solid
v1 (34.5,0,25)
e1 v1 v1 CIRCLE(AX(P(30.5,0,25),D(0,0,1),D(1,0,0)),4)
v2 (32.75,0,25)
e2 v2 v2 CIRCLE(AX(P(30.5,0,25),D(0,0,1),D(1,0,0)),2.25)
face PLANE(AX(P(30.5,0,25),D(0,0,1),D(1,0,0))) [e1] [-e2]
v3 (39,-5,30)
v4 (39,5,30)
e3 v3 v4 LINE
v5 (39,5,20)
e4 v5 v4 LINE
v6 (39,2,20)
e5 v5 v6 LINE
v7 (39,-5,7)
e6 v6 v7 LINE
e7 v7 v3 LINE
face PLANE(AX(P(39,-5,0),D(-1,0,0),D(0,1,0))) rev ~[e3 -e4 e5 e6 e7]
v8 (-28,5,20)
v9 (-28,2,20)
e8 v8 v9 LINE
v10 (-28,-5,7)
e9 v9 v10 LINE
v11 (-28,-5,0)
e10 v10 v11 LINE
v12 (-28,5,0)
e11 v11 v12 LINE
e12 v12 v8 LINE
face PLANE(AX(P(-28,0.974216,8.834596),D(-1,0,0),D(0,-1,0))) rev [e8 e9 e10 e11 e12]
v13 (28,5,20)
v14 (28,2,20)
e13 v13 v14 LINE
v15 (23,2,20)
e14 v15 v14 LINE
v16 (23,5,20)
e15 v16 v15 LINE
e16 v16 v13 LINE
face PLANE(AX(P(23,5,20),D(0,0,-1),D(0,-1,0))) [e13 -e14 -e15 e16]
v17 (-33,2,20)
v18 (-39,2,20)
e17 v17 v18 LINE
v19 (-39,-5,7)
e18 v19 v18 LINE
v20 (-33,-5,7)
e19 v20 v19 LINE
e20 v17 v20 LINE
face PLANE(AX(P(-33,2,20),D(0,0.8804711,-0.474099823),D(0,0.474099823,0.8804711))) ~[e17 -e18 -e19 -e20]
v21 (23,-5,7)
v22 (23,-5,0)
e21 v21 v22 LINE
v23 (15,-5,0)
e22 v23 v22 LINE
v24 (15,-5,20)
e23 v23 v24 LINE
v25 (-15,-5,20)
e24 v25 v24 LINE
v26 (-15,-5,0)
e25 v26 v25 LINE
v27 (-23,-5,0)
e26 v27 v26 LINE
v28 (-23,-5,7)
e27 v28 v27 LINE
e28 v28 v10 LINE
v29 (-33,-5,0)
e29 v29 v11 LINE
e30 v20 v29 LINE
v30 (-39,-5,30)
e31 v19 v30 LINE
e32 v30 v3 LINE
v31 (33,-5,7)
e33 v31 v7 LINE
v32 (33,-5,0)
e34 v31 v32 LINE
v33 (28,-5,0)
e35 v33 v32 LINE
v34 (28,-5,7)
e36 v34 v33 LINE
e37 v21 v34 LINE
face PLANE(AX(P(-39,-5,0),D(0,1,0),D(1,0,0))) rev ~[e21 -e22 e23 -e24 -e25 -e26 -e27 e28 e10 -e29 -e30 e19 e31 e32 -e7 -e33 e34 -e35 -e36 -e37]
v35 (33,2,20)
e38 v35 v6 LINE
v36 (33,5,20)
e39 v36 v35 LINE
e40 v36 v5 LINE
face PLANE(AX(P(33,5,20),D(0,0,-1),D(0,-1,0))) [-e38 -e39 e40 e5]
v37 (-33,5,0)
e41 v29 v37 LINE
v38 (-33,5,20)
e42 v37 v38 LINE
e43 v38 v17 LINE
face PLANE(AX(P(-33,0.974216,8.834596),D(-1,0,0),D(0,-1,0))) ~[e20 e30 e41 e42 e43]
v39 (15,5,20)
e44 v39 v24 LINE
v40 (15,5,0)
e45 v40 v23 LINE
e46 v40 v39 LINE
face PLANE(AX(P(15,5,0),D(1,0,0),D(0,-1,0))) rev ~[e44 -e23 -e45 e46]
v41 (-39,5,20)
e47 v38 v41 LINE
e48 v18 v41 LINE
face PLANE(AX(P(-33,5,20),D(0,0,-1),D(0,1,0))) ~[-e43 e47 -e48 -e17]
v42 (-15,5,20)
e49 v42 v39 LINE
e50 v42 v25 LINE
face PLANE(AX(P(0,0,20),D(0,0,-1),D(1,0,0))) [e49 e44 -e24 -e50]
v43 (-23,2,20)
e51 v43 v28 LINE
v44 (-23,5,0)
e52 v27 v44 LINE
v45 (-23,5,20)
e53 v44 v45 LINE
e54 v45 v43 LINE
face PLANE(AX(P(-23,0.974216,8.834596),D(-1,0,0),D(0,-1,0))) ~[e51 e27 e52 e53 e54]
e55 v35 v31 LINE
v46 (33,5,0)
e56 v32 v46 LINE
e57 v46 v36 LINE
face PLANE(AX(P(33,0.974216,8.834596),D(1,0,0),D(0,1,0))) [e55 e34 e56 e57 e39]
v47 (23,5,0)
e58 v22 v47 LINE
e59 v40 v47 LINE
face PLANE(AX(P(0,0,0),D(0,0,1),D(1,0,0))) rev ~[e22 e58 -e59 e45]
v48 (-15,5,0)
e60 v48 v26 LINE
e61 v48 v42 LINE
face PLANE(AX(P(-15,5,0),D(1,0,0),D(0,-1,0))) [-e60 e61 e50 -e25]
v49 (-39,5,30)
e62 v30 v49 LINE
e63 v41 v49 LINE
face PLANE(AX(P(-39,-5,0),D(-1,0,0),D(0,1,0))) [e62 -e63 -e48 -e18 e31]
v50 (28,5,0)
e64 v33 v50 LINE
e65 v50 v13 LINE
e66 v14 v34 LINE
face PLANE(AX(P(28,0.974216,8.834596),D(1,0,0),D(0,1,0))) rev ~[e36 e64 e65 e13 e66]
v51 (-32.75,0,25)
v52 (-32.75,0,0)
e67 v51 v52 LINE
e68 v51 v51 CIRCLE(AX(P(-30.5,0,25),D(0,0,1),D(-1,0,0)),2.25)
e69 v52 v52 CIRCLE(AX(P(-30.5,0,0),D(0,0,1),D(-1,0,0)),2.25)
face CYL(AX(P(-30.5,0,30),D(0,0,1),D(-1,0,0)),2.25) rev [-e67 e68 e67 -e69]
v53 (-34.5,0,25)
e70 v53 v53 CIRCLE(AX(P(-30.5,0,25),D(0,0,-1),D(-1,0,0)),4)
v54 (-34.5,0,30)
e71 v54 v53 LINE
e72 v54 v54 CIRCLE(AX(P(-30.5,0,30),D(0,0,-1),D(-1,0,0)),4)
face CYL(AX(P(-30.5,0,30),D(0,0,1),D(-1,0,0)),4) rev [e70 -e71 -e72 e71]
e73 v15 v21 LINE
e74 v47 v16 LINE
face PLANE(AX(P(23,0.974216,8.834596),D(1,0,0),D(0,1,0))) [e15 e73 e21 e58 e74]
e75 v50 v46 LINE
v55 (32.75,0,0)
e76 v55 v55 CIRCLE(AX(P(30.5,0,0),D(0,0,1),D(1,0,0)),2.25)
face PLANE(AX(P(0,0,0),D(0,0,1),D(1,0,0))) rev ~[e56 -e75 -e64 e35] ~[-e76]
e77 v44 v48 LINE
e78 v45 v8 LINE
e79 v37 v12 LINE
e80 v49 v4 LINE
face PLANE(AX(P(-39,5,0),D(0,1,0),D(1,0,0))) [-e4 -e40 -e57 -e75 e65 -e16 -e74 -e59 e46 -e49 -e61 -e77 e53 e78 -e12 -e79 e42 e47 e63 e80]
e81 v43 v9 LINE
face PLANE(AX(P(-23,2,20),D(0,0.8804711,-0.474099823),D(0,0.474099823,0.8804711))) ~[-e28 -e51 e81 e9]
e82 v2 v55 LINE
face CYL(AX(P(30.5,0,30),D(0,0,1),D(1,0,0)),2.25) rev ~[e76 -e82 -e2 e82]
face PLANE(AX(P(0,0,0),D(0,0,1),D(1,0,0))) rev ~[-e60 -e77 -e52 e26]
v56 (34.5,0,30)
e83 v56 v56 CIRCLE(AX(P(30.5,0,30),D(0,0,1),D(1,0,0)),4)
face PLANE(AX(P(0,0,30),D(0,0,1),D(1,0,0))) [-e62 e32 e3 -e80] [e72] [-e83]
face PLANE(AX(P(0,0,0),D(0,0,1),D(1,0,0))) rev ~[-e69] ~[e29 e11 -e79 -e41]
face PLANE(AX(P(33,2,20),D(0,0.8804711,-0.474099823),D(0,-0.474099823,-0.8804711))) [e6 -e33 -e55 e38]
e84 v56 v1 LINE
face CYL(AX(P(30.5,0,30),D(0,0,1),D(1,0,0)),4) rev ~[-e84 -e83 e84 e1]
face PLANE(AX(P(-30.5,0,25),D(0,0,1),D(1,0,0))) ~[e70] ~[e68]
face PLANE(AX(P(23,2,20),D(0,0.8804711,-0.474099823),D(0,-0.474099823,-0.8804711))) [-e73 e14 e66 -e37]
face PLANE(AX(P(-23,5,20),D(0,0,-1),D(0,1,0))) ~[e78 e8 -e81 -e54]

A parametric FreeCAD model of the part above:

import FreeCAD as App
import Part
import Sketcher
Q = App.Units.Quantity


def add_polygon(sketch, points):
    """Adds a closed chain of lines whose ends are joined by coincident constraints."""
    first, n = sketch.GeometryCount, len(points)
    for a, b in zip(points, points[1:] + points[:1]):
        sketch.addGeometry(Part.LineSegment(App.Vector(*a, 0), App.Vector(*b, 0)), False)
    for i in range(n):
        sketch.addConstraint(Sketcher.Constraint("Coincident", first + i, 2, first + (i + 1) % n, 1))

doc = App.newDocument("Part")
params = doc.addObject("Spreadsheet::Sheet", "Params")
for row, (alias, value) in enumerate([
    ("sketch1_width", "78 mm"),
    ("sketch1_height", "10 mm"),
    ("pad1_length", "30 mm"),
    ("sketch2_width", "10 mm"),
    ("sketch2_width2", "3 mm"),
    ("sketch2_height", "20 mm"),
    ("sketch2_height2", "7 mm"),
    ("pocket1_length", "5 mm"),
    ("sketch3_width", "10 mm"),
    ("sketch3_width2", "3 mm"),
    ("sketch3_height", "20 mm"),
    ("sketch3_height2", "7 mm"),
    ("sketch4_diameter", "4.5 mm"),
    ("sketch5_diameter", "8 mm"),
    ("pocket4_length", "5 mm"),
    ("sketch6_width", "30 mm"),
    ("sketch6_height", "10 mm"),
    ("pocket5_length", "20 mm"),
], start=1):
    params.set(f"A{row}", alias)
    params.set(f"B{row}", "=" + value)
    params.setAlias(f"B{row}", alias)

body = doc.addObject("PartDesign::Body", "Body")

# Sketch on XY plane
sketch1 = doc.addObject("Sketcher::SketchObject", "Sketch")
body.addObject(sketch1)
sketch1.AttachmentSupport = (doc.XY_Plane, [""])
sketch1.MapMode = "FlatFace"
add_polygon(sketch1, [(-39, 5), (-39, -5), (39, -5), (39, 5)])  # lines 0-3
sketch1.addConstraint(Sketcher.Constraint("Vertical", 0))
sketch1.addConstraint(Sketcher.Constraint("Horizontal", 1))
sketch1.addConstraint(Sketcher.Constraint("Vertical", 2))
sketch1.addConstraint(Sketcher.Constraint("Horizontal", 3))
sketch1.addConstraint(Sketcher.Constraint("Symmetric", 0, 2, 2, 2, -1, 1))
sketch1.addConstraint(Sketcher.Constraint("DistanceX", 1, 1, 1, 2, Q("78 mm")))
sketch1.addConstraint(Sketcher.Constraint("DistanceY", 0, 2, 0, 1, Q("10 mm")))
sketch1.setExpression("Constraints[9]", "Params.sketch1_width")
sketch1.setExpression("Constraints[10]", "Params.sketch1_height")
pad1 = doc.addObject("PartDesign::Pad", "Pad")
body.addObject(pad1)
pad1.Profile = sketch1
pad1.setExpression("Length", "Params.pad1_length")

# Sketch on YZ plane
sketch2 = doc.addObject("Sketcher::SketchObject", "Sketch001")
body.addObject(sketch2)
sketch2.AttachmentSupport = (doc.YZ_Plane, [""])
sketch2.MapMode = "FlatFace"
sketch2.AttachmentOffset = App.Placement(App.Vector(0, 0, 23), App.Rotation())
add_polygon(sketch2, [(-5, 0), (5, 0), (5, 20), (2, 20), (-5, 7)])  # lines 0-4
sketch2.addConstraint(Sketcher.Constraint("Horizontal", 0))
sketch2.addConstraint(Sketcher.Constraint("Vertical", 1))
sketch2.addConstraint(Sketcher.Constraint("Horizontal", 2))
sketch2.addConstraint(Sketcher.Constraint("Vertical", 4))
sketch2.addConstraint(Sketcher.Constraint("Symmetric", 0, 2, 4, 2, -1, 1))
sketch2.addConstraint(Sketcher.Constraint("DistanceX", 0, 1, 0, 2, Q("10 mm")))
sketch2.addConstraint(Sketcher.Constraint("DistanceX", 2, 2, 2, 1, Q("3 mm")))
sketch2.addConstraint(Sketcher.Constraint("DistanceY", 1, 1, 1, 2, Q("20 mm")))
sketch2.addConstraint(Sketcher.Constraint("DistanceY", 4, 2, 4, 1, Q("7 mm")))
sketch2.setExpression("Constraints[10]", "Params.sketch2_width")
sketch2.setExpression("Constraints[11]", "Params.sketch2_width2")
sketch2.setExpression("Constraints[12]", "Params.sketch2_height")
sketch2.setExpression("Constraints[13]", "Params.sketch2_height2")
pocket1 = doc.addObject("PartDesign::Pocket", "Pocket")
body.addObject(pocket1)
pocket1.Profile = sketch2
pocket1.setExpression("Length", "Params.pocket1_length")
pocket1.Reversed = True

# Sketch on YZ plane
sketch3 = doc.addObject("Sketcher::SketchObject", "Sketch002")
body.addObject(sketch3)
sketch3.AttachmentSupport = (doc.YZ_Plane, [""])
sketch3.MapMode = "FlatFace"
sketch3.AttachmentOffset = App.Placement(App.Vector(0, 0, 33), App.Rotation())
add_polygon(sketch3, [(-5, 0), (5, 0), (5, 20), (2, 20), (-5, 7)])  # lines 0-4
sketch3.addConstraint(Sketcher.Constraint("Horizontal", 0))
sketch3.addConstraint(Sketcher.Constraint("Vertical", 1))
sketch3.addConstraint(Sketcher.Constraint("Horizontal", 2))
sketch3.addConstraint(Sketcher.Constraint("Vertical", 4))
sketch3.addConstraint(Sketcher.Constraint("Symmetric", 0, 2, 4, 2, -1, 1))
sketch3.addConstraint(Sketcher.Constraint("DistanceX", 0, 1, 0, 2, Q("10 mm")))
sketch3.addConstraint(Sketcher.Constraint("DistanceX", 2, 2, 2, 1, Q("3 mm")))
sketch3.addConstraint(Sketcher.Constraint("DistanceY", 1, 1, 1, 2, Q("20 mm")))
sketch3.addConstraint(Sketcher.Constraint("DistanceY", 4, 2, 4, 1, Q("7 mm")))
sketch3.setExpression("Constraints[10]", "Params.sketch3_width")
sketch3.setExpression("Constraints[11]", "Params.sketch3_width2")
sketch3.setExpression("Constraints[12]", "Params.sketch3_height")
sketch3.setExpression("Constraints[13]", "Params.sketch3_height2")
pocket2 = doc.addObject("PartDesign::Pocket", "Pocket001")
body.addObject(pocket2)
pocket2.Profile = sketch3
pocket2.Type = "ThroughAll"
pocket2.Reversed = True

# Sketch on XY plane
sketch4 = doc.addObject("Sketcher::SketchObject", "Sketch003")
body.addObject(sketch4)
sketch4.AttachmentSupport = (doc.XY_Plane, [""])
sketch4.MapMode = "FlatFace"
sketch4.AttachmentOffset = App.Placement(App.Vector(0, 0, 30), App.Rotation())
sketch4.addGeometry(Part.Circle(App.Vector(30.5, 0, 0), App.Vector(0, 0, 1), 2.25), False)
sketch4.addConstraint(Sketcher.Constraint("PointOnObject", 0, 3, -1))
sketch4.addConstraint(Sketcher.Constraint("Diameter", 0, Q("4.5 mm")))
sketch4.addConstraint(Sketcher.Constraint("DistanceX", -1, 1, 0, 3, Q("30.5 mm")))
sketch4.setExpression("Constraints[1]", "Params.sketch4_diameter")
pocket3 = doc.addObject("PartDesign::Pocket", "Pocket002")
body.addObject(pocket3)
pocket3.Profile = sketch4
pocket3.Type = "ThroughAll"

# Sketch on XY plane
sketch5 = doc.addObject("Sketcher::SketchObject", "Sketch004")
body.addObject(sketch5)
sketch5.AttachmentSupport = (doc.XY_Plane, [""])
sketch5.MapMode = "FlatFace"
sketch5.AttachmentOffset = App.Placement(App.Vector(0, 0, 30), App.Rotation())
sketch5.addGeometry(Part.Circle(App.Vector(30.5, 0, 0), App.Vector(0, 0, 1), 4), False)
sketch5.addConstraint(Sketcher.Constraint("PointOnObject", 0, 3, -1))
sketch5.addConstraint(Sketcher.Constraint("Diameter", 0, Q("8 mm")))
sketch5.addConstraint(Sketcher.Constraint("DistanceX", -1, 1, 0, 3, Q("30.5 mm")))
sketch5.setExpression("Constraints[1]", "Params.sketch5_diameter")
pocket4 = doc.addObject("PartDesign::Pocket", "Pocket003")
body.addObject(pocket4)
pocket4.Profile = sketch5
pocket4.setExpression("Length", "Params.pocket4_length")
doc.recompute()

mirrored = doc.addObject("PartDesign::Mirrored", "Mirrored")
body.addObject(mirrored)
mirrored.Originals = [pocket4, pocket3, pocket2, pocket1]
mirrored.MirrorPlane = (doc.YZ_Plane, [""])
body.Tip = mirrored

# Sketch on XY plane
sketch6 = doc.addObject("Sketcher::SketchObject", "Sketch005")
body.addObject(sketch6)
sketch6.AttachmentSupport = (doc.XY_Plane, [""])
sketch6.MapMode = "FlatFace"
add_polygon(sketch6, [(-15, -5), (-15, 5), (15, 5), (15, -5)])  # lines 0-3
sketch6.addConstraint(Sketcher.Constraint("Vertical", 0))
sketch6.addConstraint(Sketcher.Constraint("Horizontal", 1))
sketch6.addConstraint(Sketcher.Constraint("Vertical", 2))
sketch6.addConstraint(Sketcher.Constraint("Horizontal", 3))
sketch6.addConstraint(Sketcher.Constraint("Symmetric", 0, 2, 2, 2, -1, 1))
sketch6.addConstraint(Sketcher.Constraint("DistanceX", 1, 1, 1, 2, Q("30 mm")))
sketch6.addConstraint(Sketcher.Constraint("DistanceY", 0, 1, 0, 2, Q("10 mm")))
sketch6.setExpression("Constraints[9]", "Params.sketch6_width")
sketch6.setExpression("Constraints[10]", "Params.sketch6_height")
pocket5 = doc.addObject("PartDesign::Pocket", "Pocket004")
body.addObject(pocket5)
pocket5.Profile = sketch6
pocket5.setExpression("Length", "Params.pocket5_length")
pocket5.Reversed = True

doc.recompute()
